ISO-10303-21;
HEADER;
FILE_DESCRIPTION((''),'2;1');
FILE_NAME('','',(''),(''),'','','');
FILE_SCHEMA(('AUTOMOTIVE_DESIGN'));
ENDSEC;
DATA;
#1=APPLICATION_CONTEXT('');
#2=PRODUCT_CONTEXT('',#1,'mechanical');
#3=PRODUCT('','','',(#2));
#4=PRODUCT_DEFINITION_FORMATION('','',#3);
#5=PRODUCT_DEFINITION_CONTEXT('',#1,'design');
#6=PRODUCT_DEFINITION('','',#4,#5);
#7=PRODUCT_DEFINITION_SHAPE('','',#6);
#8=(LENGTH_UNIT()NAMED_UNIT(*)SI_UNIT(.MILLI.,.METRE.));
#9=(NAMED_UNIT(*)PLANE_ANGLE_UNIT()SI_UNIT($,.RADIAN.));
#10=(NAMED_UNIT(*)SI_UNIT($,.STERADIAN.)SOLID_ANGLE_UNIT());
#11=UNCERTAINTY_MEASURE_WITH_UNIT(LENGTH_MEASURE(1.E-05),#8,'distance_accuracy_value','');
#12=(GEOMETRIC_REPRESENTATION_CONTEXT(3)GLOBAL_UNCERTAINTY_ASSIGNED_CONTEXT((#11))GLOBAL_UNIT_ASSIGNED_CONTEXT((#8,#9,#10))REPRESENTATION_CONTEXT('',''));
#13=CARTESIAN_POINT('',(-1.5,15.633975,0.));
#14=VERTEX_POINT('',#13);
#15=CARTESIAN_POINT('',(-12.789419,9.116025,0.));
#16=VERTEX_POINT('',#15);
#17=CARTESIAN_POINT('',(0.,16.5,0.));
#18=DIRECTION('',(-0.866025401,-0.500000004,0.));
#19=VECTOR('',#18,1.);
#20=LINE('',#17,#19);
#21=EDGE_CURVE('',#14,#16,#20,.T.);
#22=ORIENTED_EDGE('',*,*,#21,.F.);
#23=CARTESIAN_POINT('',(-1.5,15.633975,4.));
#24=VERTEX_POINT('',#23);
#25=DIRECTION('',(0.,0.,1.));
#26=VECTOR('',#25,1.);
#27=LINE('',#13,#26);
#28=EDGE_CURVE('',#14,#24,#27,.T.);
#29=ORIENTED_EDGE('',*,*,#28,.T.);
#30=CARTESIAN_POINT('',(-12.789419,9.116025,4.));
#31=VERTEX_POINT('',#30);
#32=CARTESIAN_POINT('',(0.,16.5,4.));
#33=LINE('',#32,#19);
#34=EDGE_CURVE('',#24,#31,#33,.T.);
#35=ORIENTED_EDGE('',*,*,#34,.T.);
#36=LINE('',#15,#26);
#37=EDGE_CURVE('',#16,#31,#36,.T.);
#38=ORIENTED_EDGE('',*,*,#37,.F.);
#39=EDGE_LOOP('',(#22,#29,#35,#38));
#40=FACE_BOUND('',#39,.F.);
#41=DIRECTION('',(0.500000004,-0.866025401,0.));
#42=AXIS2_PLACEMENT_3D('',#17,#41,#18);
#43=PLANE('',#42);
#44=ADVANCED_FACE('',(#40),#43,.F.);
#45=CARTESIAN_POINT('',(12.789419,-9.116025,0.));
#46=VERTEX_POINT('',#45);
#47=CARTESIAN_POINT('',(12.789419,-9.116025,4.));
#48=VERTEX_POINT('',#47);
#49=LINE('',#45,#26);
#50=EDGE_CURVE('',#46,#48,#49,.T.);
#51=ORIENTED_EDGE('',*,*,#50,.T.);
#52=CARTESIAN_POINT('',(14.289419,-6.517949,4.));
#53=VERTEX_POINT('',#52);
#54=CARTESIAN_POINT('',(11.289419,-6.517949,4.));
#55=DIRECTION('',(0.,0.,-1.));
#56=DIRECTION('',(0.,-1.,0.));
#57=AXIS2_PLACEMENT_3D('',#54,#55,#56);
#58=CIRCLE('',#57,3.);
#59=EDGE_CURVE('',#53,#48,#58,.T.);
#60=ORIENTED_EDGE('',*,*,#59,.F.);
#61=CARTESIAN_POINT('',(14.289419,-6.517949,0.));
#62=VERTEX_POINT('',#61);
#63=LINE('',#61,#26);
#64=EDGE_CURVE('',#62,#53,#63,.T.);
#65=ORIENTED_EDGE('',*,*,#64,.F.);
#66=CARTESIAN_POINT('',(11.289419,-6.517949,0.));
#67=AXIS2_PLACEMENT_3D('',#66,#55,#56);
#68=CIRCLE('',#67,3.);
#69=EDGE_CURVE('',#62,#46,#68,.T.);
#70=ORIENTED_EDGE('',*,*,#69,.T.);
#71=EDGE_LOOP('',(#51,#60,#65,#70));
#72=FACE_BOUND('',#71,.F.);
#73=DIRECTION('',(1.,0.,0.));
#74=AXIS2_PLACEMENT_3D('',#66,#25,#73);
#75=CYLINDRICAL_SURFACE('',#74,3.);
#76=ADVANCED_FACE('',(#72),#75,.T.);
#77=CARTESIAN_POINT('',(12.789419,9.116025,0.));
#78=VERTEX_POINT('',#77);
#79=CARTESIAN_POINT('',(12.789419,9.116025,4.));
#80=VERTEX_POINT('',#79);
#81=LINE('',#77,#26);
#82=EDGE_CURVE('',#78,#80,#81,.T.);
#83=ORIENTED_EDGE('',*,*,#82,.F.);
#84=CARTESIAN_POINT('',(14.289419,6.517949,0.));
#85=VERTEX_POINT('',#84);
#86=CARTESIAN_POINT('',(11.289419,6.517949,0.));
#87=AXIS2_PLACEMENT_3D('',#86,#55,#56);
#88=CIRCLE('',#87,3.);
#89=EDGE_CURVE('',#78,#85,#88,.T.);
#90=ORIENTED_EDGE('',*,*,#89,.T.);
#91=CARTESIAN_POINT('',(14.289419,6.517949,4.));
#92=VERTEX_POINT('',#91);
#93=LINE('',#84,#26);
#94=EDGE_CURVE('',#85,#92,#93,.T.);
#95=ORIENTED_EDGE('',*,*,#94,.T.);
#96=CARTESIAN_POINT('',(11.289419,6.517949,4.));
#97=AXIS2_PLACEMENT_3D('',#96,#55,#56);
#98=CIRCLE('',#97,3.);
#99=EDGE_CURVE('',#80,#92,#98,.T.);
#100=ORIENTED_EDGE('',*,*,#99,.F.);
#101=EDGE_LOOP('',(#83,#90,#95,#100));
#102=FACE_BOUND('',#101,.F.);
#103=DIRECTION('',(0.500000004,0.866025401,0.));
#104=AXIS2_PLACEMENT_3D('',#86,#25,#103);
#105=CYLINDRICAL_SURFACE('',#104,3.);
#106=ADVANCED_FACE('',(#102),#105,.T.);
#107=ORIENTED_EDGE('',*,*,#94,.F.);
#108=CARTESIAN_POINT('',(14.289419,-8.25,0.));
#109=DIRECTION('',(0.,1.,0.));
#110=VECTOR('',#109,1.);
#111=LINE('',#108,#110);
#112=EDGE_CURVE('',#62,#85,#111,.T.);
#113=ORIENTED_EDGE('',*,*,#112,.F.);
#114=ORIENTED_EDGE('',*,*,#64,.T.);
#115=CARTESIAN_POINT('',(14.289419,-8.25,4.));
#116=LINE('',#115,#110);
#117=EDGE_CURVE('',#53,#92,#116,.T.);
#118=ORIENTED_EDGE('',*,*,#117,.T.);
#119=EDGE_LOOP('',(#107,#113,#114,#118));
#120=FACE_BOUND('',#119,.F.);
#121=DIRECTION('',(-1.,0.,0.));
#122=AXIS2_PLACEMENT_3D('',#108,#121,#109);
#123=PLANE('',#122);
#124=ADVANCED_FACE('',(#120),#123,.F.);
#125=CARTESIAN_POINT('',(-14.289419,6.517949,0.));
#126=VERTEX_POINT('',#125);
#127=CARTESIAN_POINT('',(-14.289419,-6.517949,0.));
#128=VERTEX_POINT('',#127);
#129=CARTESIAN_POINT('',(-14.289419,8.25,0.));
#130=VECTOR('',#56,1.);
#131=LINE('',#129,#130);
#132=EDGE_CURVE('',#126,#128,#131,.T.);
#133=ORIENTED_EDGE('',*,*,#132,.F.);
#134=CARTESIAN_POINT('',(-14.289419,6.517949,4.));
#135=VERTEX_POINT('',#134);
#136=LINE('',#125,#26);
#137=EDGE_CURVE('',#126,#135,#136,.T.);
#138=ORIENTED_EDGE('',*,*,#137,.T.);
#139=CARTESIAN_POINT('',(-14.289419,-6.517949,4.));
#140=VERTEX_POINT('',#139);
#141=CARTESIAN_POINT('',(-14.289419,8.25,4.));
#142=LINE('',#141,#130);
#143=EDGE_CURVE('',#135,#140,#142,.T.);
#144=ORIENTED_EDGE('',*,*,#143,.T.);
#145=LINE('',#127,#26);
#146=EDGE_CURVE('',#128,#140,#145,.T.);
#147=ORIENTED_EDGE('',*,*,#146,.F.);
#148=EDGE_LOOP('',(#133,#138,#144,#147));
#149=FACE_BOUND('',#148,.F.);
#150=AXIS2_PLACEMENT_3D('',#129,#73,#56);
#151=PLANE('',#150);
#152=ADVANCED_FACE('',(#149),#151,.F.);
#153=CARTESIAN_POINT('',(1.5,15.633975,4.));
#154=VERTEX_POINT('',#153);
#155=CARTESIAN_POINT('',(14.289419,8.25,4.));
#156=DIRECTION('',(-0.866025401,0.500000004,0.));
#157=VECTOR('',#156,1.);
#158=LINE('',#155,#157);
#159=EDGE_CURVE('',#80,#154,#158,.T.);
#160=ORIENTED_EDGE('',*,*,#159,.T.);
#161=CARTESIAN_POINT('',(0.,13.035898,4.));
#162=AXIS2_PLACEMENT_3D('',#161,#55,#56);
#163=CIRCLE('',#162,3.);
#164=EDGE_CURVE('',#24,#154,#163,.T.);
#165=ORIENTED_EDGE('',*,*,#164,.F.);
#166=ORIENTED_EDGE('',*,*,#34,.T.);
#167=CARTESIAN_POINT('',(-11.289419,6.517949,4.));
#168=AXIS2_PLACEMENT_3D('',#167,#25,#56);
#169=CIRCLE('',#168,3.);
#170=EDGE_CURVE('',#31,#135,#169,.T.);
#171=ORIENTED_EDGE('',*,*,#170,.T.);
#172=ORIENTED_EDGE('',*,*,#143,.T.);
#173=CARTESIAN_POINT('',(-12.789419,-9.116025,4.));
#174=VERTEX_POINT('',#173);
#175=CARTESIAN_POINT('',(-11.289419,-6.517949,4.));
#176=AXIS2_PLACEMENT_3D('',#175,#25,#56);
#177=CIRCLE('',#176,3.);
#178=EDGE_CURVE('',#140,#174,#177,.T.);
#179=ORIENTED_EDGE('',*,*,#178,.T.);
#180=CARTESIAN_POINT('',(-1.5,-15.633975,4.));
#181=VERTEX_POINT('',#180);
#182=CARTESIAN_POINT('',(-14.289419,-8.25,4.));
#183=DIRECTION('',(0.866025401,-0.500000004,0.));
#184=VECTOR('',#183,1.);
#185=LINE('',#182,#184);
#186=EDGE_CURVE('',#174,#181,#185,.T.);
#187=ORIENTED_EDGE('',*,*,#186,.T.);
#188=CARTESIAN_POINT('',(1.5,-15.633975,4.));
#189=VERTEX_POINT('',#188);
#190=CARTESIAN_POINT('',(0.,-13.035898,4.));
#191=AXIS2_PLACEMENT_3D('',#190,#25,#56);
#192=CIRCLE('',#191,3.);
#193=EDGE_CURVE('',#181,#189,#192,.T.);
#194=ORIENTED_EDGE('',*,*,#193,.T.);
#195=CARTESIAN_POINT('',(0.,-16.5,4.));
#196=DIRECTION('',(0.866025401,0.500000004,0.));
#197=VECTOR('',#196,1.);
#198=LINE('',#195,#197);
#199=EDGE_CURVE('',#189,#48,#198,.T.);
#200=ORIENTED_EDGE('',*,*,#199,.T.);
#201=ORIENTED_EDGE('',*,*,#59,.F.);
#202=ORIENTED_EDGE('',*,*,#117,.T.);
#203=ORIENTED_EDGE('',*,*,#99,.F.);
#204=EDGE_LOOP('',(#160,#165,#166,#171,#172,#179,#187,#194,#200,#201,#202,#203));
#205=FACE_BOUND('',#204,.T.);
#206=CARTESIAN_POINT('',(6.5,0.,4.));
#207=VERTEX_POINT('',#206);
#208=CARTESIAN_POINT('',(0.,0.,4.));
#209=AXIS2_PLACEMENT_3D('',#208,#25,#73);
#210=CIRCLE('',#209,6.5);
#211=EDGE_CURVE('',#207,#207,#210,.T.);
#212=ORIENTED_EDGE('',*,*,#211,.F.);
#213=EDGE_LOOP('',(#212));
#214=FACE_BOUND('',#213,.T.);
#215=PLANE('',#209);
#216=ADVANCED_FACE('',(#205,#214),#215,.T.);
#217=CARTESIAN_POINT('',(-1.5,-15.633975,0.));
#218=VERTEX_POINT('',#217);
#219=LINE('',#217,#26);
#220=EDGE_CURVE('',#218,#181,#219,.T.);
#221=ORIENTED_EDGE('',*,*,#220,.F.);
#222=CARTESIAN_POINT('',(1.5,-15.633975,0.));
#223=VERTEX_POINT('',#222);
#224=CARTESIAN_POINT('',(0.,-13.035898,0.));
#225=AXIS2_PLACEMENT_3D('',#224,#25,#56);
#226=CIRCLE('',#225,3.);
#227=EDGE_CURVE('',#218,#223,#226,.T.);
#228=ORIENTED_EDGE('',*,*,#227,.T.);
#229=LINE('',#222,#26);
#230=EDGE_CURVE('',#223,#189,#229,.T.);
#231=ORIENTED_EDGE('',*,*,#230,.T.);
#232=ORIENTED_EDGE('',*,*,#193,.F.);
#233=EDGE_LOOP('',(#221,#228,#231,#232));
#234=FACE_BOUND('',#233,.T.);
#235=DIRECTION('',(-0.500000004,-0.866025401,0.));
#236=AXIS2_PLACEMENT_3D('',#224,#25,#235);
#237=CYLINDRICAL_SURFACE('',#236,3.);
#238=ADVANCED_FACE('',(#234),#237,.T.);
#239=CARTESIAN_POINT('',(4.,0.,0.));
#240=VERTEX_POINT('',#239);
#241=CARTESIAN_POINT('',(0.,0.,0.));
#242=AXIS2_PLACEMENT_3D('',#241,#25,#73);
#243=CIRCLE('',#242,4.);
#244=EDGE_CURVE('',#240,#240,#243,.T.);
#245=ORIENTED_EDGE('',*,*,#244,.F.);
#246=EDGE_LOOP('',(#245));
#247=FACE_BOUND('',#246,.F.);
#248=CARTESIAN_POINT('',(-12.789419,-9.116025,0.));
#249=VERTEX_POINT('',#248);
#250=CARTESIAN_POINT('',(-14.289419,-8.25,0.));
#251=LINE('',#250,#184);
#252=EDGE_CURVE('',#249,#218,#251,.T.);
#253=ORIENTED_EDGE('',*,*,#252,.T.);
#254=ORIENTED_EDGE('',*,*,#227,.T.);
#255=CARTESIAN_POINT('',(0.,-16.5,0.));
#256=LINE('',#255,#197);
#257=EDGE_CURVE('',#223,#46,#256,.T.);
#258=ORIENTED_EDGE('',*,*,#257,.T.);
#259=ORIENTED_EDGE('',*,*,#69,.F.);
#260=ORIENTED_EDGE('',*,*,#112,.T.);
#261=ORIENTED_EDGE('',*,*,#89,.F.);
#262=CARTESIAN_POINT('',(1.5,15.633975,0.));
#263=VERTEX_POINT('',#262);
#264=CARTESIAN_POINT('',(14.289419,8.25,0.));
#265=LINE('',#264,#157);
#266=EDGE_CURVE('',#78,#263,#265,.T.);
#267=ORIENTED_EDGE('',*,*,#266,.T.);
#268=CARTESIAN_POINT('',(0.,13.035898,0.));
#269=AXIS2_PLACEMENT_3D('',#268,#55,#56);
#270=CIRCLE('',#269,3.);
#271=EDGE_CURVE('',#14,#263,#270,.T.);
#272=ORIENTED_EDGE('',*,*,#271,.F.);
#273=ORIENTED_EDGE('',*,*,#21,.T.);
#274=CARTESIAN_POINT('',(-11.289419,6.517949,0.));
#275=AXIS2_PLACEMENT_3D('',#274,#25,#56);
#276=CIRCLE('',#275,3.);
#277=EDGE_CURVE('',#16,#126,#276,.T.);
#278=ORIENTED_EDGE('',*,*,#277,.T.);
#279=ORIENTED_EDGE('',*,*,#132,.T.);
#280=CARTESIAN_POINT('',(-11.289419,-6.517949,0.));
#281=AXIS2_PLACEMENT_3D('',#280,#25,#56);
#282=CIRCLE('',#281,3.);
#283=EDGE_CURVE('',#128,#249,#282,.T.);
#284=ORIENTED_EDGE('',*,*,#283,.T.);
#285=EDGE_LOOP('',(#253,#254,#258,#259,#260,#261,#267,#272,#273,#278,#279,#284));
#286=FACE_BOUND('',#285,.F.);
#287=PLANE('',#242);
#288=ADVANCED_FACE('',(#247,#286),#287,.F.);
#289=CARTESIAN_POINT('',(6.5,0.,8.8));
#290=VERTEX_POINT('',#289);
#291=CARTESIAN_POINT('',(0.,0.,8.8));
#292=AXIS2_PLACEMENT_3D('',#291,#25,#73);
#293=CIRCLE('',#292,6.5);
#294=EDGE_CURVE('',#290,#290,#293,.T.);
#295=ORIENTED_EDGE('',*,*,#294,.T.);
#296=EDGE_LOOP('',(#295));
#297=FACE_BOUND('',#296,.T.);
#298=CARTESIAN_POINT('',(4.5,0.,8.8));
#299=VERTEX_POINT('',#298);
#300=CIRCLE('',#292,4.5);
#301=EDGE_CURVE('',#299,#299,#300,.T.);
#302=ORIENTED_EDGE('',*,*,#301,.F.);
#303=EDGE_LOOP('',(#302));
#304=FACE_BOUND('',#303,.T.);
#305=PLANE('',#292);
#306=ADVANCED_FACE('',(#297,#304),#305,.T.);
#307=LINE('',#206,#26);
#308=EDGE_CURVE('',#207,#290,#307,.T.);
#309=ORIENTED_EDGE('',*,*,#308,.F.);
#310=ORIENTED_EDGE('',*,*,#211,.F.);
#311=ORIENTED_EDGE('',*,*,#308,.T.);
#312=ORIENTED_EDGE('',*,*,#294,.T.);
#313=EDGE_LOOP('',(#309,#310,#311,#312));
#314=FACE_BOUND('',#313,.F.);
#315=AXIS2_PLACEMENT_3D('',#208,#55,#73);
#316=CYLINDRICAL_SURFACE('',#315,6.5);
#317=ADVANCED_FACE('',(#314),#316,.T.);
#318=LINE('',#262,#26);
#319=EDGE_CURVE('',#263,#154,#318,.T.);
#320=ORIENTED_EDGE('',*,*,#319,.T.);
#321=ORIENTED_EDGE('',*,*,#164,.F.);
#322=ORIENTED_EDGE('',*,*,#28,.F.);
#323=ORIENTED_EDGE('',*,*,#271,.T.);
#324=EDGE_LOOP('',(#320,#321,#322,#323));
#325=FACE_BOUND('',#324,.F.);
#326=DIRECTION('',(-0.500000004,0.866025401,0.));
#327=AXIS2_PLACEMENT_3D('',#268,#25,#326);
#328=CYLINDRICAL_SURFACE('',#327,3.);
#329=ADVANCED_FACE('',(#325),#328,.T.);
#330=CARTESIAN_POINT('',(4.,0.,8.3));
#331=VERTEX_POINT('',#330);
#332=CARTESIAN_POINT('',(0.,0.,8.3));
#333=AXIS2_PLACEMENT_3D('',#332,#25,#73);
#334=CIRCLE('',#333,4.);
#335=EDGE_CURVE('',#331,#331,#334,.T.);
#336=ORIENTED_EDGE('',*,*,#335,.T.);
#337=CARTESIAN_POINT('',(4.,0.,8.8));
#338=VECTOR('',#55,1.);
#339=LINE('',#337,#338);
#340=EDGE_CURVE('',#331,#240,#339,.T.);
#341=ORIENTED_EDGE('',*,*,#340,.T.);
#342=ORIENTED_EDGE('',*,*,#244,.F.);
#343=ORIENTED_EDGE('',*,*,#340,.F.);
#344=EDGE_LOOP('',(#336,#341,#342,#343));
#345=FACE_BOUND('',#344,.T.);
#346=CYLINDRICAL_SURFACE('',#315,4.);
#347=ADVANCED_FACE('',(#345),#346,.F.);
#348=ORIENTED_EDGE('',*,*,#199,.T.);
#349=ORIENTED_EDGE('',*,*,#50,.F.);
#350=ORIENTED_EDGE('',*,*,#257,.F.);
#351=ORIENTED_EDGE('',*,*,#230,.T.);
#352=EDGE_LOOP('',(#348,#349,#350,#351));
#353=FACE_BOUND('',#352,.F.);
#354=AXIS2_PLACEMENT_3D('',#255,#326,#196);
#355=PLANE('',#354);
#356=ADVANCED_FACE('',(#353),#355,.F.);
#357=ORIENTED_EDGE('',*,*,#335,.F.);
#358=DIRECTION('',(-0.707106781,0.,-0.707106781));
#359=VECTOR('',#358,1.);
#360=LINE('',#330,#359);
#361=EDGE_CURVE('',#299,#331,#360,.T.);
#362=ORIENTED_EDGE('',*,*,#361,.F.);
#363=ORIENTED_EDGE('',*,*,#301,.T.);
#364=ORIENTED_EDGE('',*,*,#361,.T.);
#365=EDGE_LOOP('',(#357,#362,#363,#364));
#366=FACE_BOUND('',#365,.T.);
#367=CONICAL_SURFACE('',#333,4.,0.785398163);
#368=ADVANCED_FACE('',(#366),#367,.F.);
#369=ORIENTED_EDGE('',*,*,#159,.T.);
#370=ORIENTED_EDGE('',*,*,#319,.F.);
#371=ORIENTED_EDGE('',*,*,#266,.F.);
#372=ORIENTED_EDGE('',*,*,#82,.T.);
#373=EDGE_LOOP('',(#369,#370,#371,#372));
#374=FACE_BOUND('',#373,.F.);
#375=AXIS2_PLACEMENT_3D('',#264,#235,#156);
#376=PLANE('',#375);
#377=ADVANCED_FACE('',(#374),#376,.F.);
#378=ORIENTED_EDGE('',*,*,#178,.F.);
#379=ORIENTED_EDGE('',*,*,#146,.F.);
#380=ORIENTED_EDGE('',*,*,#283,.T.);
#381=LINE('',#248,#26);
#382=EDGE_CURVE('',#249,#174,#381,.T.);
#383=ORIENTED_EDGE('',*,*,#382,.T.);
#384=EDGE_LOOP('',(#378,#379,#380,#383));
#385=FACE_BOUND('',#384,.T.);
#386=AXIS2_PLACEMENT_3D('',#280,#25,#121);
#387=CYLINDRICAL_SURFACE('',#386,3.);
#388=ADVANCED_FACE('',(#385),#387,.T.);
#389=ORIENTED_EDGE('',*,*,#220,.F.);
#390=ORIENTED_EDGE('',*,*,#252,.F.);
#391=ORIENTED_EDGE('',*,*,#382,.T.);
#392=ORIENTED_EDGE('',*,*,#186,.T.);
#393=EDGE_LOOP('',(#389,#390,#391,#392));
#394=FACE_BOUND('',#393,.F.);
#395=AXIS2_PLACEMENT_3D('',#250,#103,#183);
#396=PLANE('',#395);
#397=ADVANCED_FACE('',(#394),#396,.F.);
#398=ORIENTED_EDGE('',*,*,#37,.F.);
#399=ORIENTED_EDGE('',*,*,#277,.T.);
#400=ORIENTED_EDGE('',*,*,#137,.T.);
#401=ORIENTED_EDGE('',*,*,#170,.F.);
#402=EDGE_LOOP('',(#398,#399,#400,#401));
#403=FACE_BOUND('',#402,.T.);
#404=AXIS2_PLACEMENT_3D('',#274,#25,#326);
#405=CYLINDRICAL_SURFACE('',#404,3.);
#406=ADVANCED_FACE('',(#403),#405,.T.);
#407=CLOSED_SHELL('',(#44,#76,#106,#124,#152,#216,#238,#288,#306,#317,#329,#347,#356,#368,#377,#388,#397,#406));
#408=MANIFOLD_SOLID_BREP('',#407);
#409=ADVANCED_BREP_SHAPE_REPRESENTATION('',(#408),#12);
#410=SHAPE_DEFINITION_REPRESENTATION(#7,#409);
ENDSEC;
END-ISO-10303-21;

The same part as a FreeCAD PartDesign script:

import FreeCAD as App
import Part
import Sketcher
Q = App.Units.Quantity


def edges_at(feature, points):
    """Names of the edges that pass closest to the given points."""
    edges = feature.Shape.Edges
    near = lambda p: min(range(len(edges)), key=lambda i: edges[i].distToShape(Part.Vertex(*p))[0])
    return sorted({f"Edge{near(p) + 1}" for p in points})

doc = App.newDocument("Part")
body = doc.addObject("PartDesign::Body", "Body")

# Sketch on XY plane
sketch1 = body.newObject("Sketcher::SketchObject", "Sketch")
sketch1.AttachmentSupport = (doc.getObject("XY_Plane"), [""])
sketch1.MapMode = "FlatFace"
sketch1.addGeometry(Part.LineSegment(App.Vector(0, 16.5, 0), App.Vector(-14.3, 8.2, 0)), False)
sketch1.addGeometry(Part.LineSegment(App.Vector(-14.3, 8.2, 0), App.Vector(-14.3, -8.2, 0)), False)
sketch1.addGeometry(Part.LineSegment(App.Vector(-14.3, -8.2, 0), App.Vector(0, -16.5, 0)), False)
sketch1.addGeometry(Part.LineSegment(App.Vector(0, -16.5, 0), App.Vector(14.3, -8.2, 0)), False)
sketch1.addGeometry(Part.LineSegment(App.Vector(14.3, -8.2, 0), App.Vector(14.3, 8.2, 0)), False)
sketch1.addGeometry(Part.LineSegment(App.Vector(14.3, 8.2, 0), App.Vector(0, 16.5, 0)), False)
sketch1.addGeometry(Part.Circle(App.Vector(0, 0, 0), App.Vector(0, 0, 1), 4), False)
sketch1.addConstraint(Sketcher.Constraint("Coincident", 0, 2, 1, 1))
sketch1.addConstraint(Sketcher.Constraint("Coincident", 1, 2, 2, 1))
sketch1.addConstraint(Sketcher.Constraint("Coincident", 2, 2, 3, 1))
sketch1.addConstraint(Sketcher.Constraint("Coincident", 3, 2, 4, 1))
sketch1.addConstraint(Sketcher.Constraint("Coincident", 4, 2, 5, 1))
sketch1.addConstraint(Sketcher.Constraint("Coincident", 5, 2, 0, 1))
sketch1.addConstraint(Sketcher.Constraint("Vertical", 1))
sketch1.addConstraint(Sketcher.Constraint("Vertical", 4))
sketch1.addConstraint(Sketcher.Constraint("Coincident", 6, 3, -1, 1))
sketch1.addConstraint(Sketcher.Constraint("Symmetric", 0, 2, 3, 2, -1, 1))
sketch1.addConstraint(Sketcher.Constraint("Symmetric", 2, 2, 5, 2, -1, 1))
sketch1.addConstraint(Sketcher.Constraint("PointOnObject", 2, 2, -2))
sketch1.addConstraint(Sketcher.Constraint("Parallel", 2, 5))
sketch1.addConstraint(Sketcher.Constraint("Horizontal", 1, 2, 3, 2))
sketch1.addConstraint(Sketcher.Constraint("Diameter", 6, Q("8 mm")))
sketch1.addConstraint(Sketcher.Constraint("Angle", 0, Q("-150 deg")))
sketch1.addConstraint(Sketcher.Constraint("DistanceY", 1, 2, 1, 1, Q("16.5 mm")))
sketch1.addConstraint(Sketcher.Constraint("Distance", 0, Q("16.5 mm")))
pad1 = body.newObject("PartDesign::Pad", "Pad")
pad1.Profile = sketch1
pad1.Length = 4

# Sketch on XY plane
sketch2 = body.newObject("Sketcher::SketchObject", "Sketch001")
sketch2.AttachmentSupport = (doc.getObject("XY_Plane"), [""])
sketch2.MapMode = "FlatFace"
sketch2.AttachmentOffset = App.Placement(App.Vector(0, 0, 4), App.Rotation())
sketch2.addGeometry(Part.Circle(App.Vector(0, 0, 0), App.Vector(0, 0, 1), 6.5), False)
sketch2.addGeometry(Part.Circle(App.Vector(0, 0, 0), App.Vector(0, 0, 1), 4), False)
sketch2.addConstraint(Sketcher.Constraint("Coincident", 0, 3, -1, 1))
sketch2.addConstraint(Sketcher.Constraint("Coincident", 1, 3, -1, 1))
sketch2.addConstraint(Sketcher.Constraint("Diameter", 0, Q("13 mm")))
sketch2.addConstraint(Sketcher.Constraint("Diameter", 1, Q("8 mm")))
pad2 = body.newObject("PartDesign::Pad", "Pad001")
pad2.Profile = sketch2
pad2.Length = 4.8
doc.recompute()

chamfer = body.newObject("PartDesign::Chamfer", "Chamfer")
chamfer.Base = (pad2, edges_at(pad2, [(-4, 0, 8.8)]))
chamfer.Size = 0.5
doc.recompute()

fillet = body.newObject("PartDesign::Fillet", "Fillet")
fillet.Base = (chamfer, edges_at(chamfer, [
    (0, -16.5, 2),
    (14.289, -8.25, 2),
    (14.289, 8.25, 2),
    (-14.289, -8.25, 2),
    (-14.289, 8.25, 2),
    (0, 16.5, 2),
]))
fillet.Radius = 3

doc.recompute()
